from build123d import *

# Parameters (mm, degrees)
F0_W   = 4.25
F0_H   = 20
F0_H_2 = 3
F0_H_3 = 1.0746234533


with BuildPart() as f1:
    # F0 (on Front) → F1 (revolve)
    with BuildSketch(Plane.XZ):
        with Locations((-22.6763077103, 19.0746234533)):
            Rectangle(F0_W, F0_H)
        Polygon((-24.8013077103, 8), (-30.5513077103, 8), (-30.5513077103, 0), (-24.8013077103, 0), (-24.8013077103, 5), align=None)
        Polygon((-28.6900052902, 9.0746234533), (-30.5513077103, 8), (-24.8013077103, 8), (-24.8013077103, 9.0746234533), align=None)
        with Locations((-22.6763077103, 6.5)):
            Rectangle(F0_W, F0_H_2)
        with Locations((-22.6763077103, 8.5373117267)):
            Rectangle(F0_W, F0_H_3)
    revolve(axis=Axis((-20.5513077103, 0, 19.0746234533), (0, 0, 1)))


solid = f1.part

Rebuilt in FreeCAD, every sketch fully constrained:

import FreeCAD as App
import Part
import Sketcher

V = App.Vector
Q = App.Units.Quantity


def add_polygon(sketch, points):
    """Adds a closed chain of lines whose ends are joined by coincident constraints."""
    first, n = sketch.GeometryCount, len(points)
    for a, b in zip(points, points[1:] + points[:1]):
        sketch.addGeometry(Part.LineSegment(App.Vector(*a, 0), App.Vector(*b, 0)), False)
    for i in range(n):
        sketch.addConstraint(Sketcher.Constraint("Coincident", first + i, 2, first + (i + 1) % n, 1))

doc = App.newDocument("Part")
body = doc.addObject("PartDesign::Body", "Body")

# Sketch on XZ plane
sketch1 = doc.addObject("Sketcher::SketchObject", "Sketch")
body.addObject(sketch1)
sketch1.AttachmentSupport = (doc.XZ_Plane, [""])
sketch1.MapMode = "FlatFace"
add_polygon(sketch1, [(-24.801308, 29.074623), (-24.801308, 9.074623), (-28.690005, 9.074623), (-30.551308, 8), (-30.551308, 0), (-24.801308, 0), (-24.801308, 5), (-20.551308, 5), (-20.551308, 29.074623)])  # lines 0-8
sketch1.addGeometry(Part.LineSegment(V(-20.551308, 0, 0), V(-20.551308, 29.074623, 0)), True)  # axis
sketch1.addConstraint([
    Sketcher.Constraint("Vertical", 0),
    Sketcher.Constraint("Horizontal", 1),
    Sketcher.Constraint("Vertical", 3),
    Sketcher.Constraint("Horizontal", 4),
    Sketcher.Constraint("Vertical", 5),
    Sketcher.Constraint("Horizontal", 6),
    Sketcher.Constraint("Vertical", 7),
    Sketcher.Constraint("Horizontal", 8),
    Sketcher.Constraint("Vertical", 9),
    Sketcher.Constraint("Coincident", 9, 2, 7, 2),
    Sketcher.Constraint("PointOnObject", 3, 2, -1),
    Sketcher.Constraint("PointOnObject", 9, 1, -1),
    Sketcher.Constraint("Vertical", 0, 2, 4, 2),
    Sketcher.Constraint("DistanceY", 0, 2, 0, 1, Q("20 mm")),
    Sketcher.Constraint("DistanceY", 3, 2, 3, 1, Q("8 mm")),
    Sketcher.Constraint("DistanceY", 5, 1, 5, 2, Q("5 mm")),
    Sketcher.Constraint("Angle", 2, Q("-150 deg")),
    Sketcher.Constraint("DistanceX", 2, 2, 6, 2, Q("10 mm")),
    Sketcher.Constraint("DistanceX", 4, 1, 4, 2, Q("5.75 mm")),
    Sketcher.Constraint("DistanceX", 1, 2, 1, 1, Q("3.888698 mm")),
    Sketcher.Constraint("DistanceX", 0, 2, -1, 1, Q("24.801308 mm")),
])
revolution = doc.addObject("PartDesign::Revolution", "Revolution")
body.addObject(revolution)
revolution.Profile = sketch1
revolution.ReferenceAxis = (sketch1, ["Axis0"])
revolution.Angle = 360

doc.recompute()
